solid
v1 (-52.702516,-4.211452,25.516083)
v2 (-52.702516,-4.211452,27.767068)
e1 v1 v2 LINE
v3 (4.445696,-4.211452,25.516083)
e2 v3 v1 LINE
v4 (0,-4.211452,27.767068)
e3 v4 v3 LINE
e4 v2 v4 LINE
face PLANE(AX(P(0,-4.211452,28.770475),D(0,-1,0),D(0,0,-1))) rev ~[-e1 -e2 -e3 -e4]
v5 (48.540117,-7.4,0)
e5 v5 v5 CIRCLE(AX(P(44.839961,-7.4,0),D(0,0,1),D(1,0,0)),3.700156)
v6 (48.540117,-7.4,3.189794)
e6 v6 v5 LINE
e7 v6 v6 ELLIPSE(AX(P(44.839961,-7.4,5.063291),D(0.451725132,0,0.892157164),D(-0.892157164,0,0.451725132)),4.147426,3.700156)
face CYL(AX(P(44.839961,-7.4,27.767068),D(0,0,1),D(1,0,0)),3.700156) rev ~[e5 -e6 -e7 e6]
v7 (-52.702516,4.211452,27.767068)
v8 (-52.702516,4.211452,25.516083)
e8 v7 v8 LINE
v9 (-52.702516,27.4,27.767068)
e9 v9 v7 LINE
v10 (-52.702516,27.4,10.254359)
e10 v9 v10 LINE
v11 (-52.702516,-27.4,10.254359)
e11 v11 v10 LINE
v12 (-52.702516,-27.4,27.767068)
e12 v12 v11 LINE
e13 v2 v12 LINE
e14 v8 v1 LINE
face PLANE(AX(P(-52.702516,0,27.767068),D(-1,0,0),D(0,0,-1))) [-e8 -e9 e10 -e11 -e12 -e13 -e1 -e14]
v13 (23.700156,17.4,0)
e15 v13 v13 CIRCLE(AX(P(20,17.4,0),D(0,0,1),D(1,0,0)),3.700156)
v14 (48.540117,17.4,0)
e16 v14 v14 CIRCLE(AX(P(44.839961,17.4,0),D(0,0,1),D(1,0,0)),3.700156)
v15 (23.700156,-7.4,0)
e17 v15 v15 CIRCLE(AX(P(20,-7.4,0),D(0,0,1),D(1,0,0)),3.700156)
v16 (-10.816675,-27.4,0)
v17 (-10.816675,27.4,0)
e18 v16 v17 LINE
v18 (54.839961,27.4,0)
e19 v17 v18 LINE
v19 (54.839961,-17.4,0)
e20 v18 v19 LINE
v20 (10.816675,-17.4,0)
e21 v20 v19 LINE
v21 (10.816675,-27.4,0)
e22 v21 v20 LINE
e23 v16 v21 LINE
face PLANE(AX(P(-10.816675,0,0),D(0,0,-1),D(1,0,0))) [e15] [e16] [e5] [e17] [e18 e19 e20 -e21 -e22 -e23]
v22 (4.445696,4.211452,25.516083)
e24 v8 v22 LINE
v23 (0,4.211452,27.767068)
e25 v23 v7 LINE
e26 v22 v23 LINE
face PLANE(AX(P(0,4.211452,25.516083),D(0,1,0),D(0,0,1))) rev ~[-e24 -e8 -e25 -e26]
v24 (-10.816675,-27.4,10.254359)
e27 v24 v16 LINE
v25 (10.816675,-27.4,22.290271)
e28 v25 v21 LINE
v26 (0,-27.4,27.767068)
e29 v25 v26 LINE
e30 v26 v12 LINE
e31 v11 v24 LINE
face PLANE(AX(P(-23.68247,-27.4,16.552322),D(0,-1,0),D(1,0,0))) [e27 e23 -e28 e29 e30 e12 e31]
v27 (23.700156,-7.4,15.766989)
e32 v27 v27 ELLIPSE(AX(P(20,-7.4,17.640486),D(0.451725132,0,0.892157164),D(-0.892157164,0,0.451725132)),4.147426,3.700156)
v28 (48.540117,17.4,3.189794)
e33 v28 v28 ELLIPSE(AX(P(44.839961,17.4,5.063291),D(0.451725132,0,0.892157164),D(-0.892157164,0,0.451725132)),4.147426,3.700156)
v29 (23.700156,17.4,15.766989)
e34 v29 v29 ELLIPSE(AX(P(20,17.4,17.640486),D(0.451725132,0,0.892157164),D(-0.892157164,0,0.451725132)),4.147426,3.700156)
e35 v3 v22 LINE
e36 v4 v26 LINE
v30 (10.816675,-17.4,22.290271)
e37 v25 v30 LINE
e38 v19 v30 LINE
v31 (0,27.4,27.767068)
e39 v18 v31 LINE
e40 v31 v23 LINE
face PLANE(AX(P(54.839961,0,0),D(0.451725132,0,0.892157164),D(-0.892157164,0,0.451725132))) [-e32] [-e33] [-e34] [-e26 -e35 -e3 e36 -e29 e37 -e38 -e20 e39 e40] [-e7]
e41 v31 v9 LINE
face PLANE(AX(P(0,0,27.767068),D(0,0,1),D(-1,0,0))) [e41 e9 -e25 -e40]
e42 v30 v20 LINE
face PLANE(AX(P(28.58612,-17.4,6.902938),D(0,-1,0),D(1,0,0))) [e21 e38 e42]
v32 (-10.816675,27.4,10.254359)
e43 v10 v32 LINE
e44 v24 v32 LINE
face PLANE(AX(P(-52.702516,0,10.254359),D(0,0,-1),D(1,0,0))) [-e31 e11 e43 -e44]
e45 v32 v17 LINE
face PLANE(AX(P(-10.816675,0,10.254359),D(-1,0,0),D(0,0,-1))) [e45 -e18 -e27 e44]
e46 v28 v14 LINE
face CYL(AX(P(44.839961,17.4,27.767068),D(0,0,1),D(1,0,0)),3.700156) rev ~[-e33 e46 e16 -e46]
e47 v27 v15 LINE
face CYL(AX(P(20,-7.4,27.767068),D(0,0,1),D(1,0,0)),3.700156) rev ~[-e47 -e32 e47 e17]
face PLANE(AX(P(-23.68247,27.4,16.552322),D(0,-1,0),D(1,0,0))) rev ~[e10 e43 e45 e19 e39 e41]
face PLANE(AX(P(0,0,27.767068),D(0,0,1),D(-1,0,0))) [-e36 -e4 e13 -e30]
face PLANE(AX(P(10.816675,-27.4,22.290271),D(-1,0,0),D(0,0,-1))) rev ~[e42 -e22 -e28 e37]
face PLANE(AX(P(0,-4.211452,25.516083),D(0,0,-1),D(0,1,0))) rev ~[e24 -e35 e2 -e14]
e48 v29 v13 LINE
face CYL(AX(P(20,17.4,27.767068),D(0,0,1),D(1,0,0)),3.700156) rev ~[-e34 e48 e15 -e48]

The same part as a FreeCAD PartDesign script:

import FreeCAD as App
import Part
import Sketcher

V = App.Vector
Q = App.Units.Quantity

doc = App.newDocument("Part")
body = doc.addObject("PartDesign::Body", "Body")

# Sketch on XZ plane
sketch1 = body.newObject("Sketcher::SketchObject", "Sketch")
sketch1.AttachmentSupport = (doc.getObject("XZ_Plane"), [""])
sketch1.MapMode = "FlatFace"
sketch1.addGeometry(Part.LineSegment(V(-10.816675, 0, 0), V(54.839961, 0, 0)), False)
sketch1.addGeometry(Part.LineSegment(V(54.839961, 0, 0), V(0, 27.767068, 0)), False)
sketch1.addGeometry(Part.LineSegment(V(0, 27.767068, 0), V(-52.702516, 27.767068, 0)), False)
sketch1.addGeometry(Part.LineSegment(V(-52.702516, 27.767068, 0), V(-52.702516, 10.254359, 0)), False)
sketch1.addGeometry(Part.LineSegment(V(-52.702516, 10.254359, 0), V(-10.816675, 10.254359, 0)), False)
sketch1.addGeometry(Part.LineSegment(V(-10.816675, 10.254359, 0), V(-10.816675, 0, 0)), False)
sketch1.addConstraint(Sketcher.Constraint("Coincident", 0, 2, 1, 1))
sketch1.addConstraint(Sketcher.Constraint("Coincident", 1, 2, 2, 1))
sketch1.addConstraint(Sketcher.Constraint("Coincident", 2, 2, 3, 1))
sketch1.addConstraint(Sketcher.Constraint("Coincident", 3, 2, 4, 1))
sketch1.addConstraint(Sketcher.Constraint("Coincident", 4, 2, 5, 1))
sketch1.addConstraint(Sketcher.Constraint("Coincident", 5, 2, 0, 1))
sketch1.addConstraint(Sketcher.Constraint("Horizontal", 0))
sketch1.addConstraint(Sketcher.Constraint("Horizontal", 2))
sketch1.addConstraint(Sketcher.Constraint("Vertical", 3))
sketch1.addConstraint(Sketcher.Constraint("Horizontal", 4))
sketch1.addConstraint(Sketcher.Constraint("Vertical", 5))
sketch1.addConstraint(Sketcher.Constraint("PointOnObject", 0, 2, -1))
sketch1.addConstraint(Sketcher.Constraint("PointOnObject", 1, 2, -2))
sketch1.addConstraint(Sketcher.Constraint("DistanceX", 4, 1, 4, 2, Q("41.885841 mm")))
sketch1.addConstraint(Sketcher.Constraint("DistanceY", 3, 2, 3, 1, Q("17.512709 mm")))
sketch1.addConstraint(Sketcher.Constraint("DistanceY", 5, 2, 5, 1, Q("10.254359 mm")))
sketch1.addConstraint(Sketcher.Constraint("DistanceX", 0, 1, 0, 2, Q("65.656636 mm")))
sketch1.addConstraint(Sketcher.Constraint("DistanceX", 2, 2, 2, 1, Q("52.702516 mm")))
pad1 = body.newObject("PartDesign::Pad", "Pad")
pad1.Profile = sketch1
pad1.Length = 54.8
pad1.Midplane = True

# Sketch on XZ plane
sketch2 = body.newObject("Sketcher::SketchObject", "Sketch001")
sketch2.AttachmentSupport = (doc.getObject("XZ_Plane"), [""])
sketch2.MapMode = "FlatFace"
sketch2.AttachmentOffset = App.Placement(V(0, 0, 27.4), App.Rotation())
sketch2.addGeometry(Part.LineSegment(V(10.816675, 22.290271, 0), V(10.816675, 0, 0)), False)
sketch2.addGeometry(Part.LineSegment(V(10.816675, 0, 0), V(54.839961, 0, 0)), False)
sketch2.addGeometry(Part.LineSegment(V(54.839961, 0, 0), V(10.816675, 22.290271, 0)), False)
sketch2.addConstraint(Sketcher.Constraint("Coincident", 0, 2, 1, 1))
sketch2.addConstraint(Sketcher.Constraint("Coincident", 1, 2, 2, 1))
sketch2.addConstraint(Sketcher.Constraint("Coincident", 2, 2, 0, 1))
sketch2.addConstraint(Sketcher.Constraint("Vertical", 0))
sketch2.addConstraint(Sketcher.Constraint("Horizontal", 1))
sketch2.addConstraint(Sketcher.Constraint("PointOnObject", 0, 2, -1))
sketch2.addConstraint(Sketcher.Constraint("DistanceY", 0, 2, 0, 1, Q("22.290271 mm")))
sketch2.addConstraint(Sketcher.Constraint("DistanceX", 1, 1, 1, 2, Q("44.023286 mm")))
sketch2.addConstraint(Sketcher.Constraint("DistanceX", -1, 1, 1, 2, Q("54.839961 mm")))
pocket1 = body.newObject("PartDesign::Pocket", "Pocket")
pocket1.Profile = sketch2
pocket1.Length = 10

# Sketch on YZ plane
sketch3 = body.newObject("Sketcher::SketchObject", "Sketch002")
sketch3.AttachmentSupport = (doc.getObject("YZ_Plane"), [""])
sketch3.MapMode = "FlatFace"
sketch3.addGeometry(Part.LineSegment(V(-4.211452, 25.516083, 0), V(4.211452, 25.516083, 0)), False)
sketch3.addGeometry(Part.LineSegment(V(4.211452, 25.516083, 0), V(4.211452, 28.770475, 0)), False)
sketch3.addGeometry(Part.LineSegment(V(4.211452, 28.770475, 0), V(-4.211452, 28.770475, 0)), False)
sketch3.addGeometry(Part.LineSegment(V(-4.211452, 28.770475, 0), V(-4.211452, 25.516083, 0)), False)
sketch3.addConstraint(Sketcher.Constraint("Coincident", 0, 2, 1, 1))
sketch3.addConstraint(Sketcher.Constraint("Coincident", 1, 2, 2, 1))
sketch3.addConstraint(Sketcher.Constraint("Coincident", 2, 2, 3, 1))
sketch3.addConstraint(Sketcher.Constraint("Coincident", 3, 2, 0, 1))
sketch3.addConstraint(Sketcher.Constraint("Horizontal", 0))
sketch3.addConstraint(Sketcher.Constraint("Vertical", 1))
sketch3.addConstraint(Sketcher.Constraint("Horizontal", 2))
sketch3.addConstraint(Sketcher.Constraint("Vertical", 3))
sketch3.addConstraint(Sketcher.Constraint("DistanceX", 0, 1, 0, 2, Q("8.422904 mm")))
sketch3.addConstraint(Sketcher.Constraint("DistanceY", 1, 1, 1, 2, Q("3.254392 mm")))
sketch3.addConstraint(Sketcher.Constraint("DistanceX", -1, 1, 0, 2, Q("4.211452 mm")))
sketch3.addConstraint(Sketcher.Constraint("DistanceY", -1, 1, 0, 2, Q("25.516083 mm")))
pocket2 = body.newObject("PartDesign::Pocket", "Pocket001")
pocket2.Profile = sketch3
pocket2.Length = 176.4
pocket2.Midplane = True

# Sketch on XY plane
sketch4 = body.newObject("Sketcher::SketchObject", "Sketch003")
sketch4.AttachmentSupport = (doc.getObject("XY_Plane"), [""])
sketch4.MapMode = "FlatFace"
sketch4.AttachmentOffset = App.Placement(V(0, 0, 27.767068), App.Rotation())
sketch4.addGeometry(Part.Circle(V(20, 17.4, 0), V(0, 0, 1), 3.700156), False)
sketch4.addGeometry(Part.Circle(V(44.839961, 17.4, 0), V(0, 0, 1), 3.700156), False)
sketch4.addGeometry(Part.Circle(V(44.839961, -7.4, 0), V(0, 0, 1), 3.700156), False)
sketch4.addGeometry(Part.Circle(V(20, -7.4, 0), V(0, 0, 1), 3.700156), False)
sketch4.addConstraint(Sketcher.Constraint("Equal", 0, 1))
sketch4.addConstraint(Sketcher.Constraint("Equal", 1, 2))
sketch4.addConstraint(Sketcher.Constraint("Equal", 2, 3))
sketch4.addConstraint(Sketcher.Constraint("Horizontal", 0, 3, 1, 3))
sketch4.addConstraint(Sketcher.Constraint("Horizontal", 2, 3, 3, 3))
sketch4.addConstraint(Sketcher.Constraint("Vertical", 1, 3, 2, 3))
sketch4.addConstraint(Sketcher.Constraint("Vertical", 0, 3, 3, 3))
sketch4.addConstraint(Sketcher.Constraint("DistanceX", -1, 1, 0, 3, Q("20 mm")))
sketch4.addConstraint(Sketcher.Constraint("DistanceY", -1, 1, 0, 3, Q("17.4 mm")))
sketch4.addConstraint(Sketcher.Constraint("DistanceY", 2, 3, -1, 1, Q("7.4 mm")))
sketch4.addConstraint(Sketcher.Constraint("Diameter", 0, Q("7.400312 mm")))
sketch4.addConstraint(Sketcher.Constraint("DistanceX", -1, 1, 1, 3, Q("44.839961 mm")))
pocket3 = body.newObject("PartDesign::Pocket", "Pocket002")
pocket3.Profile = sketch4
pocket3.Type = "ThroughAll"

doc.recompute()
